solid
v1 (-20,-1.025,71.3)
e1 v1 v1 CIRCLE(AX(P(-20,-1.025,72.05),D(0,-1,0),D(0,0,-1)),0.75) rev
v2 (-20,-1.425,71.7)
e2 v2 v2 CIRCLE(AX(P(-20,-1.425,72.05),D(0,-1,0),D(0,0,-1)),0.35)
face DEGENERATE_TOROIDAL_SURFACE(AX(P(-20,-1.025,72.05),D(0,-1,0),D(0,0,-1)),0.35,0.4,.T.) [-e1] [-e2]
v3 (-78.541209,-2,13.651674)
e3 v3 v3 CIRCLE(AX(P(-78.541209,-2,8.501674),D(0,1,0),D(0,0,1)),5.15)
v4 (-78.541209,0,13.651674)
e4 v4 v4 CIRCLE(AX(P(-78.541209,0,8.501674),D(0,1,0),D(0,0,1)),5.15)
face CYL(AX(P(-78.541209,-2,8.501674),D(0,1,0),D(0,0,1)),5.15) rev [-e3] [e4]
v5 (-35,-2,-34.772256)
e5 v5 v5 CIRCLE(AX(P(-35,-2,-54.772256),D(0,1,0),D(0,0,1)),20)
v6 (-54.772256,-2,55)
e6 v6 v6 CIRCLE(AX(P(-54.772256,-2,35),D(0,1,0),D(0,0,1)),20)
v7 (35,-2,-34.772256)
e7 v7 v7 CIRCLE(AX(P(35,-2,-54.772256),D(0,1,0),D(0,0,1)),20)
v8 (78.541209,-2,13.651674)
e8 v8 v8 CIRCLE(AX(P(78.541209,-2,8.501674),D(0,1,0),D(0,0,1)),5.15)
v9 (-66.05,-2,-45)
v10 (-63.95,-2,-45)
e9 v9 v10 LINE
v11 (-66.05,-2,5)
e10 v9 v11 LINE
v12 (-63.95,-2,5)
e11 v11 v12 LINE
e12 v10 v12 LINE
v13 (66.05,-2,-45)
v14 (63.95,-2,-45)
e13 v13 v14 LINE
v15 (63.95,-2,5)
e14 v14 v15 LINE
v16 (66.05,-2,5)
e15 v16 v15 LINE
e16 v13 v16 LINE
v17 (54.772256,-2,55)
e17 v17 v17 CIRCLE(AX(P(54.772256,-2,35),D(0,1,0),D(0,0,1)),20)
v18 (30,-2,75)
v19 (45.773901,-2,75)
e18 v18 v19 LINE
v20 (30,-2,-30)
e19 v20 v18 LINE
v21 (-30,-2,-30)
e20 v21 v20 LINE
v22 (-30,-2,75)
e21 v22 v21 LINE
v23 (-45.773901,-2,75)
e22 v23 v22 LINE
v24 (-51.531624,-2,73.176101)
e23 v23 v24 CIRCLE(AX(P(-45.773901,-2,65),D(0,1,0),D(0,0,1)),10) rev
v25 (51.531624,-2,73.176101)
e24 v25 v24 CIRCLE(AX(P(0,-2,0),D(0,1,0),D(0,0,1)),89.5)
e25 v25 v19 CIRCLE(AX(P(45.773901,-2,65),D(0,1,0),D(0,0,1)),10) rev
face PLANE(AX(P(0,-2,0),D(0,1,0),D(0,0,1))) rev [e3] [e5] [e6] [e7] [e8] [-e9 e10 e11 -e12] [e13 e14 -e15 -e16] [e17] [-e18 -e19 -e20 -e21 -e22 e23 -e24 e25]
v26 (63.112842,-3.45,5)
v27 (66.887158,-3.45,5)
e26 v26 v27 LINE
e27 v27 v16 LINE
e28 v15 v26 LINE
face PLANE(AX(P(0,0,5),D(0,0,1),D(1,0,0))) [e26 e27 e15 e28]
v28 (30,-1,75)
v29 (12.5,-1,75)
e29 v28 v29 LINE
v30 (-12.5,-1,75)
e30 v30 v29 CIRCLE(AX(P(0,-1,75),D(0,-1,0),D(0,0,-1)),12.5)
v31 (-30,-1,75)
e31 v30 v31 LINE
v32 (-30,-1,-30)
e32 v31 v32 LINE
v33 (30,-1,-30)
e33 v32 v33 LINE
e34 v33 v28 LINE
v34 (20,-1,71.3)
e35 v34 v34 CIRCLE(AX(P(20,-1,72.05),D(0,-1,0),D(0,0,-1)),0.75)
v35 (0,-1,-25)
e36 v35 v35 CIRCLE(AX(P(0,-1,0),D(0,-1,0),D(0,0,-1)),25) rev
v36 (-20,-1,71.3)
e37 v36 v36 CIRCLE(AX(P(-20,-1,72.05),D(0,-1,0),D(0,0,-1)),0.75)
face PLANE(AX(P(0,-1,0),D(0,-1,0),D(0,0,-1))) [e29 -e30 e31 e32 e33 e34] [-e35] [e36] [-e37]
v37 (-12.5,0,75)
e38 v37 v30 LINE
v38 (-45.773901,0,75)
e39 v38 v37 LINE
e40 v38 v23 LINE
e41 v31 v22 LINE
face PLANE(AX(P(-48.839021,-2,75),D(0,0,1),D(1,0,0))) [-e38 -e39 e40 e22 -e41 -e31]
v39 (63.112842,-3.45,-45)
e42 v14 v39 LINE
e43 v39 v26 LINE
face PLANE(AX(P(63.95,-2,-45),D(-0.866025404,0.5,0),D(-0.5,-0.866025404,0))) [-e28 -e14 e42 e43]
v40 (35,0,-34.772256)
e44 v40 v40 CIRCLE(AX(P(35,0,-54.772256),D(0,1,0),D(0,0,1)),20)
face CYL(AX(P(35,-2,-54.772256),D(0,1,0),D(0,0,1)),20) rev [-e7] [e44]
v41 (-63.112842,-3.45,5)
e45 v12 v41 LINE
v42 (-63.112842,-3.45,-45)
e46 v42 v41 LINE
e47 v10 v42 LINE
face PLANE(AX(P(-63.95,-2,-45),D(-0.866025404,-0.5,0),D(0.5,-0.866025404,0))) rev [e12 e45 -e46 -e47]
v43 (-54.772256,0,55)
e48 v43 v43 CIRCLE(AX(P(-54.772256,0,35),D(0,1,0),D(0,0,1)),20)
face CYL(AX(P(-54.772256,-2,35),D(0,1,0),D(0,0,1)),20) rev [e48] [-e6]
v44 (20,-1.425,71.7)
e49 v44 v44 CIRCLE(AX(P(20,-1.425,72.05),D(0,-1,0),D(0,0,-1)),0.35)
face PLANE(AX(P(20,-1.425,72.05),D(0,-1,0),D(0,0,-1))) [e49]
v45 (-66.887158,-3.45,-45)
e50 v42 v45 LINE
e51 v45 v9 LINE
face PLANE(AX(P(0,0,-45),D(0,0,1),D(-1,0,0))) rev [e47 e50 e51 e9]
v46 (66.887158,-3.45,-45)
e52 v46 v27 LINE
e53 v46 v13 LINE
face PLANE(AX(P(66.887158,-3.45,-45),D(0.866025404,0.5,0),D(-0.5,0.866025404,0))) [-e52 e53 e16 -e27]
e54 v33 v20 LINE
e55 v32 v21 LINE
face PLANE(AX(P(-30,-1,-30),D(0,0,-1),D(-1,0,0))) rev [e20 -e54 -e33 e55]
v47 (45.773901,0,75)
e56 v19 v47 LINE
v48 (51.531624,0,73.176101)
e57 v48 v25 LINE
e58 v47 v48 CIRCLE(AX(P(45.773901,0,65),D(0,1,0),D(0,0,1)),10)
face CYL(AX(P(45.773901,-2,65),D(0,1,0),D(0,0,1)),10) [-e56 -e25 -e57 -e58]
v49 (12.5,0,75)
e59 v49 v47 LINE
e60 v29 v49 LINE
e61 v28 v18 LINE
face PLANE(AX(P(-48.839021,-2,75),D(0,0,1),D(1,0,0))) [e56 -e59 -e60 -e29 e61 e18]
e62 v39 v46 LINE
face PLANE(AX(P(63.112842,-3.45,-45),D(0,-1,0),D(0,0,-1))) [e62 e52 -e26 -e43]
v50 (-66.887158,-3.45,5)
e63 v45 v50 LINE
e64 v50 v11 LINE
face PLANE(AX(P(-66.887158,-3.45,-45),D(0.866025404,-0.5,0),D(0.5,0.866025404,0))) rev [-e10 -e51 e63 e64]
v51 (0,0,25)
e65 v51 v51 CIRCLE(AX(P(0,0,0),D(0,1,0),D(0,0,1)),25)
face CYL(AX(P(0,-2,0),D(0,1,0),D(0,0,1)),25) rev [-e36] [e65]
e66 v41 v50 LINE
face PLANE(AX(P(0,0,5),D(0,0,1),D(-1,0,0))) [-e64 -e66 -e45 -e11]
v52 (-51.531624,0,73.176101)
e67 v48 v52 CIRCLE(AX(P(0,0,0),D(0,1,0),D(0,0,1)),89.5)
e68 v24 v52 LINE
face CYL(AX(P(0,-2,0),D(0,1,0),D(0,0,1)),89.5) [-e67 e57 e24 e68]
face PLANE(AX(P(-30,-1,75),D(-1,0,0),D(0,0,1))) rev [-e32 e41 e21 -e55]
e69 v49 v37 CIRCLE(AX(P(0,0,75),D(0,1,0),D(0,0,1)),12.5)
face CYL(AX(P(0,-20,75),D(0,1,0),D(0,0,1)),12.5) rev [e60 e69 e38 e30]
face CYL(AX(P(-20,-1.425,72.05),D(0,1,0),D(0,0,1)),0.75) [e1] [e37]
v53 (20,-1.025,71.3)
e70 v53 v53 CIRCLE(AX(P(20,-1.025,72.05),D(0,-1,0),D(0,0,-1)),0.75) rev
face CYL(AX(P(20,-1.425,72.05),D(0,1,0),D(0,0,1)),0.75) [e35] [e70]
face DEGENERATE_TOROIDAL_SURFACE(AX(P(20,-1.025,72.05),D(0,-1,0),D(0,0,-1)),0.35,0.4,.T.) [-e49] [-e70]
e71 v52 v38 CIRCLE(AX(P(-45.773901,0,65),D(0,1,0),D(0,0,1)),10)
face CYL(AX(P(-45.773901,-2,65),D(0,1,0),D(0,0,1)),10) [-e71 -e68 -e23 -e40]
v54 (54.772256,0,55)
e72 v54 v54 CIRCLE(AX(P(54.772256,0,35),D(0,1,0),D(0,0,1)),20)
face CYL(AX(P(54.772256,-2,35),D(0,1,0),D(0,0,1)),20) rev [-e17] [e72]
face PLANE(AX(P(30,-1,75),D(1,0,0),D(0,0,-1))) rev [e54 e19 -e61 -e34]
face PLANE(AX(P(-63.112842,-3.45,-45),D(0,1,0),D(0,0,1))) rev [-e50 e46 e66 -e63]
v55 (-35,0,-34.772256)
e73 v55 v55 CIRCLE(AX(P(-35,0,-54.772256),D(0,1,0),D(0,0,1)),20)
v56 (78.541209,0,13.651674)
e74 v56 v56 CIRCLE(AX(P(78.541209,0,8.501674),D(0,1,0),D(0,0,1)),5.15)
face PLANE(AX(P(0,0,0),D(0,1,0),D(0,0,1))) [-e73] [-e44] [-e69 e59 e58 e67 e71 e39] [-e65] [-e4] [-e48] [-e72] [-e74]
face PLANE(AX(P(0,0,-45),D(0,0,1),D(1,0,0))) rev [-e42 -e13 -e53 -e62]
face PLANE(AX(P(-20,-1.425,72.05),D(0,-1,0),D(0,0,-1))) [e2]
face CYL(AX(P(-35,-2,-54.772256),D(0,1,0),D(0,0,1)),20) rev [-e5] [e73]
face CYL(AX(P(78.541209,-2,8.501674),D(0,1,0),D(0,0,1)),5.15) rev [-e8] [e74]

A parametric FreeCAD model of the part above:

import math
import FreeCAD as App
import Part
import Sketcher
from FreeCAD import Vector
Q = App.Units.Quantity


def edges_at(feature, points):
    """Names of the edges that pass closest to the given points."""
    edges = feature.Shape.Edges
    near = lambda p: min(range(len(edges)), key=lambda i: edges[i].distToShape(Part.Vertex(*p))[0])
    return sorted({f"Edge{near(p) + 1}" for p in points})


def add_polygon(sketch, points):
    """Adds a closed chain of lines whose ends are joined by coincident constraints."""
    first, n = sketch.GeometryCount, len(points)
    for a, b in zip(points, points[1:] + points[:1]):
        sketch.addGeometry(Part.LineSegment(App.Vector(*a, 0), App.Vector(*b, 0)), False)
    for i in range(n):
        sketch.addConstraint(Sketcher.Constraint("Coincident", first + i, 2, first + (i + 1) % n, 1))

doc = App.newDocument("Part")
body = doc.addObject("PartDesign::Body", "Body")

# Sketch on XZ plane
sketch1 = doc.addObject("Sketcher::SketchObject", "Sketch")
body.addObject(sketch1)
sketch1.AttachmentSupport = (doc.XZ_Plane, [""])
sketch1.MapMode = "FlatFace"
sketch1.addGeometry(Part.LineSegment(Vector(-49, 75, 0), Vector(49, 75, 0)), False)
sketch1.addGeometry(Part.ArcOfCircle(Part.Circle(Vector(0, 0, 0), Vector(0, 0, 1), 90), math.radians(123), math.radians(417)), False)
sketch1.addConstraint(Sketcher.Constraint("Coincident", 0, 1, 1, 1))
sketch1.addConstraint(Sketcher.Constraint("Coincident", 1, 2, 0, 2))
sketch1.addConstraint(Sketcher.Constraint("Horizontal", 0))
sketch1.addConstraint(Sketcher.Constraint("Coincident", 1, 3, -1, 1))
sketch1.addConstraint(Sketcher.Constraint("Radius", 1, Q("89.5 mm")))
sketch1.addConstraint(Sketcher.Constraint("DistanceY", -1, 1, 0, 1, Q("75 mm")))
pad1 = doc.addObject("PartDesign::Pad", "Pad")
body.addObject(pad1)
pad1.Profile = sketch1
pad1.Length = 2

# Sketch on XZ plane
sketch2 = doc.addObject("Sketcher::SketchObject", "Sketch001")
body.addObject(sketch2)
sketch2.AttachmentSupport = (doc.XZ_Plane, [""])
sketch2.MapMode = "FlatFace"
sketch2.addGeometry(Part.Circle(Vector(79, 9, 0), Vector(0, 0, 1), 5), False)
sketch2.addGeometry(Part.Circle(Vector(-79, 9, 0), Vector(0, 0, 1), 5), False)
sketch2.addConstraint(Sketcher.Constraint("Equal", 0, 1))
sketch2.addConstraint(Sketcher.Constraint("Symmetric", 0, 3, 1, 3, -2))
sketch2.addConstraint(Sketcher.Constraint("Diameter", 0, Q("10.3 mm")))
sketch2.addConstraint(Sketcher.Constraint("DistanceX", -1, 1, 0, 3, Q("78.541209 mm")))
sketch2.addConstraint(Sketcher.Constraint("DistanceY", -1, 1, 0, 3, Q("8.501674 mm")))
pocket1 = doc.addObject("PartDesign::Pocket", "Pocket")
body.addObject(pocket1)
pocket1.Profile = sketch2
pocket1.Type = "ThroughAll"
pocket1.Reversed = True

# Sketch on XZ plane
sketch3 = doc.addObject("Sketcher::SketchObject", "Sketch002")
body.addObject(sketch3)
sketch3.AttachmentSupport = (doc.XZ_Plane, [""])
sketch3.MapMode = "FlatFace"
sketch3.addGeometry(Part.Circle(Vector(0, 0, 0), Vector(0, 0, 1), 25), False)
sketch3.addGeometry(Part.Circle(Vector(55, 35, 0), Vector(0, 0, 1), 20), False)
sketch3.addGeometry(Part.Circle(Vector(-55, 35, 0), Vector(0, 0, 1), 20), False)
sketch3.addGeometry(Part.Circle(Vector(35, -55, 0), Vector(0, 0, 1), 20), False)
sketch3.addGeometry(Part.Circle(Vector(-35, -55, 0), Vector(0, 0, 1), 20), False)
sketch3.addConstraint(Sketcher.Constraint("Coincident", 0, 3, -1, 1))
sketch3.addConstraint(Sketcher.Constraint("Equal", 1, 2))
sketch3.addConstraint(Sketcher.Constraint("Equal", 2, 3))
sketch3.addConstraint(Sketcher.Constraint("Equal", 3, 4))
sketch3.addConstraint(Sketcher.Constraint("Symmetric", 1, 3, 2, 3, -2))
sketch3.addConstraint(Sketcher.Constraint("Symmetric", 3, 3, 4, 3, -2))
sketch3.addConstraint(Sketcher.Constraint("Diameter", 0, Q("50 mm")))
sketch3.addConstraint(Sketcher.Constraint("Diameter", 1, Q("40 mm")))
sketch3.addConstraint(Sketcher.Constraint("DistanceY", -1, 1, 1, 3, Q("35 mm")))
sketch3.addConstraint(Sketcher.Constraint("DistanceX", -1, 1, 3, 3, Q("35 mm")))
sketch3.addConstraint(Sketcher.Constraint("DistanceX", 2, 3, 1, 3, Q("109.544512 mm")))
sketch3.addConstraint(Sketcher.Constraint("DistanceY", 3, 3, -1, 1, Q("54.772256 mm")))
pocket2 = doc.addObject("PartDesign::Pocket", "Pocket001")
body.addObject(pocket2)
pocket2.Profile = sketch3
pocket2.Type = "ThroughAll"
pocket2.Reversed = True
doc.recompute()

fillet = doc.addObject("PartDesign::Fillet", "Fillet")
body.addObject(fillet)
fillet.Base = (pocket2, edges_at(pocket2, [(48.839, -1, 75), (-48.839, -1, 75)]))
fillet.Radius = 10

# Sketch on XY plane
sketch4 = doc.addObject("Sketcher::SketchObject", "Sketch003")
body.addObject(sketch4)
sketch4.AttachmentSupport = (doc.XY_Plane, [""])
sketch4.MapMode = "FlatFace"
sketch4.AttachmentOffset = App.Placement(Vector(0, 0, 5), App.Rotation())
add_polygon(sketch4, [(63.1, -3.5), (66.9, -3.5), (66, -2), (64, -2)])  # lines 0-3
sketch4.addConstraint(Sketcher.Constraint("Horizontal", 0))
sketch4.addConstraint(Sketcher.Constraint("Horizontal", 2))
sketch4.addConstraint(Sketcher.Constraint("Equal", 1, 3))
sketch4.addConstraint(Sketcher.Constraint("Angle", 1, Q("120 deg")))
sketch4.addConstraint(Sketcher.Constraint("DistanceX", 2, 2, 2, 1, Q("2.1 mm")))
sketch4.addConstraint(Sketcher.Constraint("DistanceY", 1, 2, -1, 1, Q("2 mm")))
sketch4.addConstraint(Sketcher.Constraint("DistanceY", 0, 2, -1, 1, Q("3.45 mm")))
sketch4.addConstraint(Sketcher.Constraint("DistanceX", -1, 1, 1, 2, Q("66.05 mm")))
pad2 = doc.addObject("PartDesign::Pad", "Pad001")
body.addObject(pad2)
pad2.Profile = sketch4
pad2.Length = 50
pad2.Reversed = True
doc.recompute()

mirrored = doc.addObject("PartDesign::Mirrored", "Mirrored")
body.addObject(mirrored)
mirrored.Originals = [pad2]
mirrored.MirrorPlane = (doc.YZ_Plane, [""])
body.Tip = mirrored

# Sketch on XZ plane
sketch5 = doc.addObject("Sketcher::SketchObject", "Sketch004")
body.addObject(sketch5)
sketch5.AttachmentSupport = (doc.XZ_Plane, [""])
sketch5.MapMode = "FlatFace"
sketch5.AttachmentOffset = App.Placement(Vector(0, 0, 2), App.Rotation())
add_polygon(sketch5, [(-30, 75), (-30, -30), (30, -30), (30, 75)])  # lines 0-3
sketch5.addConstraint(Sketcher.Constraint("Vertical", 0))
sketch5.addConstraint(Sketcher.Constraint("Horizontal", 1))
sketch5.addConstraint(Sketcher.Constraint("Vertical", 2))
sketch5.addConstraint(Sketcher.Constraint("Horizontal", 3))
sketch5.addConstraint(Sketcher.Constraint("DistanceX", 1, 1, 1, 2, Q("60 mm")))
sketch5.addConstraint(Sketcher.Constraint("DistanceY", 0, 2, 0, 1, Q("105 mm")))
sketch5.addConstraint(Sketcher.Constraint("DistanceX", 0, 2, -1, 1, Q("30 mm")))
sketch5.addConstraint(Sketcher.Constraint("DistanceY", 0, 2, -1, 1, Q("30 mm")))
pocket3 = doc.addObject("PartDesign::Pocket", "Pocket002")
body.addObject(pocket3)
pocket3.Profile = sketch5
pocket3.Length = 1

# Sketch on XZ plane
sketch6 = doc.addObject("Sketcher::SketchObject", "Sketch005")
body.addObject(sketch6)
sketch6.AttachmentSupport = (doc.XZ_Plane, [""])
sketch6.MapMode = "FlatFace"
sketch6.addGeometry(Part.Circle(Vector(0, 75, 0), Vector(0, 0, 1), 12), False)
sketch6.addConstraint(Sketcher.Constraint("PointOnObject", 0, 3, -2))
sketch6.addConstraint(Sketcher.Constraint("Diameter", 0, Q("25 mm")))
sketch6.addConstraint(Sketcher.Constraint("DistanceY", -1, 1, 0, 3, Q("75 mm")))
pocket4 = doc.addObject("PartDesign::Pocket", "Pocket003")
body.addObject(pocket4)
pocket4.Profile = sketch6
pocket4.Length = 20
pocket4.Reversed = True

# Sketch on XZ plane
sketch7 = doc.addObject("Sketcher::SketchObject", "Sketch006")
body.addObject(sketch7)
sketch7.AttachmentSupport = (doc.XZ_Plane, [""])
sketch7.MapMode = "FlatFace"
sketch7.AttachmentOffset = App.Placement(Vector(0, 0, 1), App.Rotation())
sketch7.addGeometry(Part.Circle(Vector(-20, 72, 0), Vector(0, 0, 1), 0.8), False)
sketch7.addConstraint(Sketcher.Constraint("Diameter", 0, Q("1.5 mm")))
sketch7.addConstraint(Sketcher.Constraint("DistanceX", 0, 3, -1, 1, Q("20 mm")))
sketch7.addConstraint(Sketcher.Constraint("DistanceY", -1, 1, 0, 3, Q("72.05 mm")))
pad3 = doc.addObject("PartDesign::Pad", "Pad002")
body.addObject(pad3)
pad3.Profile = sketch7
pad3.Length = 0.425
doc.recompute()

mirrored2 = doc.addObject("PartDesign::Mirrored", "Mirrored001")
body.addObject(mirrored2)
mirrored2.Originals = [pad3]
mirrored2.MirrorPlane = (doc.YZ_Plane, [""])
body.Tip = mirrored2
doc.recompute()

fillet2 = doc.addObject("PartDesign::Fillet", "Fillet001")
body.addObject(fillet2)
fillet2.Base = (mirrored2, edges_at(mirrored2, [(-20, -1.425, 72.8), (20, -1.425, 72.8)]))
fillet2.Radius = 0.4

doc.recompute()
